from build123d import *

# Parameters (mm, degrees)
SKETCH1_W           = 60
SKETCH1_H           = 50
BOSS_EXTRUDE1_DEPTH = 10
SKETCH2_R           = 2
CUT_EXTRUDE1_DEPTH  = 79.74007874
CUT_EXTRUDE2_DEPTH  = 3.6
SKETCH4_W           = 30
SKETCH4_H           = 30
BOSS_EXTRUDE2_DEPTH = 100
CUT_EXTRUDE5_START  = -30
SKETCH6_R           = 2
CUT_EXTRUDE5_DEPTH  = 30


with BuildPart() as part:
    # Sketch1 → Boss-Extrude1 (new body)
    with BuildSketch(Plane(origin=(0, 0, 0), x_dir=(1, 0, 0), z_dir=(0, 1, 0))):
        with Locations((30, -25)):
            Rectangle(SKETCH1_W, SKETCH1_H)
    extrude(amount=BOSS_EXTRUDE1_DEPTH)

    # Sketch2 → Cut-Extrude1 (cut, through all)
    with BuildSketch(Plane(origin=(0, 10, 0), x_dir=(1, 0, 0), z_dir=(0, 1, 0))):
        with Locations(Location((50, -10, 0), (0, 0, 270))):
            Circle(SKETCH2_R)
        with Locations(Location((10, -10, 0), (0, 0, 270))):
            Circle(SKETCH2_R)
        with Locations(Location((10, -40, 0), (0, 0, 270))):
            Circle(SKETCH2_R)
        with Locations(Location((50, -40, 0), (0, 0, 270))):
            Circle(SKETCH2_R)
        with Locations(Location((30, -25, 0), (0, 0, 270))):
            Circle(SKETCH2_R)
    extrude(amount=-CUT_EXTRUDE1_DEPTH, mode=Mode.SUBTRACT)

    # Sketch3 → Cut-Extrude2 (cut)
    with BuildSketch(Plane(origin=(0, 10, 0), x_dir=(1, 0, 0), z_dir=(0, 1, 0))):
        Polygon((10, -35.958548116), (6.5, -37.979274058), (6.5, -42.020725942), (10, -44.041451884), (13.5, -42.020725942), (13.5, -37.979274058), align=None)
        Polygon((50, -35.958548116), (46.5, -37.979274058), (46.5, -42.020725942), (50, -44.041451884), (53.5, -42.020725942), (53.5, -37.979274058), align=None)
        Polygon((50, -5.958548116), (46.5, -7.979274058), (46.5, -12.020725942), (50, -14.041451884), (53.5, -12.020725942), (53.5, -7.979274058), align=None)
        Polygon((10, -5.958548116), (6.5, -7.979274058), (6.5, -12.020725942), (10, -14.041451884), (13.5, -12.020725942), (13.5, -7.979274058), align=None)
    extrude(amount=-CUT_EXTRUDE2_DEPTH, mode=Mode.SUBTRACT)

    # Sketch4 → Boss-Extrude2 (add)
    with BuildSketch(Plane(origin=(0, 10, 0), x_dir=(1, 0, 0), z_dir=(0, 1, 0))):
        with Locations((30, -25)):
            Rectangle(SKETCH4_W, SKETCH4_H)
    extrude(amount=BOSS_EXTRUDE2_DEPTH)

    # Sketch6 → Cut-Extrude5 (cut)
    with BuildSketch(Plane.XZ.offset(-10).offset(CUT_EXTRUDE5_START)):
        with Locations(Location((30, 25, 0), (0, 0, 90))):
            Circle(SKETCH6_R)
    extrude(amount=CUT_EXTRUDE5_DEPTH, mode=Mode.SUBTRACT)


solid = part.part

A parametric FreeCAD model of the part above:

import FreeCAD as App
import Part
import Sketcher
from FreeCAD import Vector
Q = App.Units.Quantity


def add_polygon(sketch, points):
    """Adds a closed chain of lines whose ends are joined by coincident constraints."""
    first, n = sketch.GeometryCount, len(points)
    for a, b in zip(points, points[1:] + points[:1]):
        sketch.addGeometry(Part.LineSegment(App.Vector(*a, 0), App.Vector(*b, 0)), False)
    for i in range(n):
        sketch.addConstraint(Sketcher.Constraint("Coincident", first + i, 2, first + (i + 1) % n, 1))

doc = App.newDocument("Part")
body = doc.addObject("PartDesign::Body", "Body")

sketch1 = body.newObject("Sketcher::SketchObject", "Sketch")
sketch1.AttachmentSupport = (doc.getObject("XZ_Plane"), [""])
sketch1.MapMode = "FlatFace"
add_polygon(sketch1, [(0, 0), (0, 50), (60, 50), (60, 0)])
sketch1.addConstraint(Sketcher.Constraint("Vertical", 0))
sketch1.addConstraint(Sketcher.Constraint("Horizontal", 1))
sketch1.addConstraint(Sketcher.Constraint("Vertical", 2))
sketch1.addConstraint(Sketcher.Constraint("Horizontal", 3))
sketch1.addConstraint(Sketcher.Constraint("Coincident", 3, 2, -1, 1))
sketch1.addConstraint(Sketcher.Constraint("DistanceX", 1, 1, 1, 2, Q("60 mm")))
sketch1.addConstraint(Sketcher.Constraint("DistanceY", 0, 1, 0, 2, Q("50 mm")))
pad1 = body.newObject("PartDesign::Pad", "Pad")
pad1.Profile = sketch1
pad1.Length = 10
pad1.Reversed = True

sketch2 = body.newObject("Sketcher::SketchObject", "Sketch001")
sketch2.AttachmentSupport = (doc.getObject("XZ_Plane"), [""])
sketch2.MapMode = "FlatFace"
sketch2.AttachmentOffset = App.Placement(Vector(0, 0, -10), App.Rotation())
sketch2.addGeometry(Part.Circle(Vector(50, 10, 0), Vector(0, 0, 1), 2), False)
sketch2.addGeometry(Part.Circle(Vector(10, 10, 0), Vector(0, 0, 1), 2), False)
sketch2.addGeometry(Part.Circle(Vector(10, 40, 0), Vector(0, 0, 1), 2), False)
sketch2.addGeometry(Part.Circle(Vector(50, 40, 0), Vector(0, 0, 1), 2), False)
sketch2.addGeometry(Part.Circle(Vector(30, 25, 0), Vector(0, 0, 1), 2), False)
sketch2.addConstraint(Sketcher.Constraint("Equal", 0, 1))
sketch2.addConstraint(Sketcher.Constraint("Equal", 1, 2))
sketch2.addConstraint(Sketcher.Constraint("Equal", 2, 3))
sketch2.addConstraint(Sketcher.Constraint("Equal", 3, 4))
sketch2.addConstraint(Sketcher.Constraint("Horizontal", 0, 3, 1, 3))
sketch2.addConstraint(Sketcher.Constraint("Horizontal", 2, 3, 3, 3))
sketch2.addConstraint(Sketcher.Constraint("Vertical", 1, 3, 2, 3))
sketch2.addConstraint(Sketcher.Constraint("Vertical", 0, 3, 3, 3))
sketch2.addConstraint(Sketcher.Constraint("Diameter", 0, Q("4 mm")))
sketch2.addConstraint(Sketcher.Constraint("DistanceX", -1, 1, 0, 3, Q("50 mm")))
sketch2.addConstraint(Sketcher.Constraint("DistanceY", -1, 1, 0, 3, Q("10 mm")))
sketch2.addConstraint(Sketcher.Constraint("DistanceX", -1, 1, 1, 3, Q("10 mm")))
sketch2.addConstraint(Sketcher.Constraint("DistanceY", -1, 1, 2, 3, Q("40 mm")))
sketch2.addConstraint(Sketcher.Constraint("DistanceX", -1, 1, 4, 3, Q("30 mm")))
sketch2.addConstraint(Sketcher.Constraint("DistanceY", -1, 1, 4, 3, Q("25 mm")))
pocket1 = body.newObject("PartDesign::Pocket", "Pocket")
pocket1.Profile = sketch2
pocket1.Type = "ThroughAll"
pocket1.Reversed = True

sketch3 = body.newObject("Sketcher::SketchObject", "Sketch002")
sketch3.AttachmentSupport = (doc.getObject("XZ_Plane"), [""])
sketch3.MapMode = "FlatFace"
sketch3.AttachmentOffset = App.Placement(Vector(0, 0, -10), App.Rotation())
add_polygon(sketch3, [(10, 35.958548), (6.5, 37.979274), (6.5, 42.020726), (10, 44.041452), (13.5, 42.020726), (13.5, 37.979274)])
add_polygon(sketch3, [(50, 35.958548), (46.5, 37.979274), (46.5, 42.020726), (50, 44.041452), (53.5, 42.020726), (53.5, 37.979274)])
add_polygon(sketch3, [(50, 5.958548), (46.5, 7.979274), (46.5, 12.020726), (50, 14.041452), (53.5, 12.020726), (53.5, 7.979274)])
add_polygon(sketch3, [(10, 5.958548), (6.5, 7.979274), (6.5, 12.020726), (10, 14.041452), (13.5, 12.020726), (13.5, 7.979274)])
sketch3.addConstraint(Sketcher.Constraint("Vertical", 1))
sketch3.addConstraint(Sketcher.Constraint("Vertical", 4))
sketch3.addConstraint(Sketcher.Constraint("Vertical", 7))
sketch3.addConstraint(Sketcher.Constraint("Vertical", 10))
sketch3.addConstraint(Sketcher.Constraint("Vertical", 13))
sketch3.addConstraint(Sketcher.Constraint("Vertical", 16))
sketch3.addConstraint(Sketcher.Constraint("Vertical", 19))
sketch3.addConstraint(Sketcher.Constraint("Vertical", 22))
sketch3.addConstraint(Sketcher.Constraint("Parallel", 0, 3))
sketch3.addConstraint(Sketcher.Constraint("Parallel", 2, 5))
sketch3.addConstraint(Sketcher.Constraint("Parallel", 3, 6))
sketch3.addConstraint(Sketcher.Constraint("Parallel", 5, 8))
sketch3.addConstraint(Sketcher.Constraint("Parallel", 6, 9))
sketch3.addConstraint(Sketcher.Constraint("Parallel", 8, 11))
sketch3.addConstraint(Sketcher.Constraint("Parallel", 9, 12))
sketch3.addConstraint(Sketcher.Constraint("Parallel", 11, 14))
sketch3.addConstraint(Sketcher.Constraint("Parallel", 12, 15))
sketch3.addConstraint(Sketcher.Constraint("Parallel", 14, 17))
sketch3.addConstraint(Sketcher.Constraint("Parallel", 15, 18))
sketch3.addConstraint(Sketcher.Constraint("Parallel", 17, 20))
sketch3.addConstraint(Sketcher.Constraint("Parallel", 18, 21))
sketch3.addConstraint(Sketcher.Constraint("Parallel", 20, 23))
sketch3.addConstraint(Sketcher.Constraint("Horizontal", 1, 2, 3, 2))
sketch3.addConstraint(Sketcher.Constraint("Horizontal", 0, 2, 4, 2))
sketch3.addConstraint(Sketcher.Constraint("Horizontal", 4, 2, 6, 2))
sketch3.addConstraint(Sketcher.Constraint("Horizontal", 3, 2, 7, 2))
sketch3.addConstraint(Sketcher.Constraint("Horizontal", 2, 2, 8, 2))
sketch3.addConstraint(Sketcher.Constraint("Horizontal", 7, 2, 9, 2))
sketch3.addConstraint(Sketcher.Constraint("Horizontal", 6, 2, 10, 2))
sketch3.addConstraint(Sketcher.Constraint("Horizontal", 13, 2, 15, 2))
sketch3.addConstraint(Sketcher.Constraint("Horizontal", 12, 2, 16, 2))
sketch3.addConstraint(Sketcher.Constraint("Horizontal", 16, 2, 18, 2))
sketch3.addConstraint(Sketcher.Constraint("Horizontal", 15, 2, 19, 2))
sketch3.addConstraint(Sketcher.Constraint("Horizontal", 14, 2, 20, 2))
sketch3.addConstraint(Sketcher.Constraint("Horizontal", 19, 2, 21, 2))
sketch3.addConstraint(Sketcher.Constraint("Horizontal", 18, 2, 22, 2))
sketch3.addConstraint(Sketcher.Constraint("Vertical", 2, 2, 5, 2))
sketch3.addConstraint(Sketcher.Constraint("Vertical", 7, 2, 12, 2))
sketch3.addConstraint(Sketcher.Constraint("Vertical", 11, 2, 14, 2))
sketch3.addConstraint(Sketcher.Constraint("Vertical", 1, 2, 18, 2))
sketch3.addConstraint(Sketcher.Constraint("Equal", 10, 13))
sketch3.addConstraint(Sketcher.Constraint("Angle", 0, Q("150 deg")))
sketch3.addConstraint(Sketcher.Constraint("DistanceX", -1, 1, 2, 2, Q("10 mm")))
sketch3.addConstraint(Sketcher.Constraint("DistanceX", -1, 1, 8, 2, Q("50 mm")))
sketch3.addConstraint(Sketcher.Constraint("DistanceX", 1, 2, 3, 2, Q("7 mm")))
sketch3.addConstraint(Sketcher.Constraint("DistanceY", 12, 2, 6, 2, Q("30 mm")))
sketch3.addConstraint(Sketcher.Constraint("DistanceY", 1, 1, 1, 2, Q("4.041452 mm")))
sketch3.addConstraint(Sketcher.Constraint("DistanceY", -1, 1, 2, 2, Q("44.041452 mm")))
pocket2 = body.newObject("PartDesign::Pocket", "Pocket001")
pocket2.Profile = sketch3
pocket2.Length = 3.6
pocket2.Reversed = True

sketch4 = body.newObject("Sketcher::SketchObject", "Sketch003")
sketch4.AttachmentSupport = (doc.getObject("XZ_Plane"), [""])
sketch4.MapMode = "FlatFace"
sketch4.AttachmentOffset = App.Placement(Vector(0, 0, -10), App.Rotation())
add_polygon(sketch4, [(15, 10), (15, 40), (45, 40), (45, 10)])
sketch4.addConstraint(Sketcher.Constraint("Vertical", 0))
sketch4.addConstraint(Sketcher.Constraint("Horizontal", 1))
sketch4.addConstraint(Sketcher.Constraint("Vertical", 2))
sketch4.addConstraint(Sketcher.Constraint("Horizontal", 3))
sketch4.addConstraint(Sketcher.Constraint("Equal", 3, 0))
sketch4.addConstraint(Sketcher.Constraint("DistanceX", 1, 1, 1, 2, Q("30 mm")))
sketch4.addConstraint(Sketcher.Constraint("DistanceX", -1, 1, 0, 2, Q("15 mm")))
sketch4.addConstraint(Sketcher.Constraint("DistanceY", -1, 1, 0, 2, Q("40 mm")))
pad2 = body.newObject("PartDesign::Pad", "Pad001")
pad2.Profile = sketch4
pad2.Length = 100
pad2.Reversed = True

sketch5 = body.newObject("Sketcher::SketchObject", "Sketch004")
sketch5.AttachmentSupport = (doc.getObject("XZ_Plane"), [""])
sketch5.MapMode = "FlatFace"
sketch5.AttachmentOffset = App.Placement(Vector(0, 0, -40), App.Rotation())
sketch5.addGeometry(Part.Circle(Vector(30, 25, 0), Vector(0, 0, 1), 2), False)
sketch5.addConstraint(Sketcher.Constraint("Diameter", 0, Q("4 mm")))
sketch5.addConstraint(Sketcher.Constraint("DistanceX", -1, 1, 0, 3, Q("30 mm")))
sketch5.addConstraint(Sketcher.Constraint("DistanceY", -1, 1, 0, 3, Q("25 mm")))
pocket3 = body.newObject("PartDesign::Pocket", "Pocket002")
pocket3.Profile = sketch5
pocket3.Length = 30
pocket3.Reversed = True

doc.recompute()
